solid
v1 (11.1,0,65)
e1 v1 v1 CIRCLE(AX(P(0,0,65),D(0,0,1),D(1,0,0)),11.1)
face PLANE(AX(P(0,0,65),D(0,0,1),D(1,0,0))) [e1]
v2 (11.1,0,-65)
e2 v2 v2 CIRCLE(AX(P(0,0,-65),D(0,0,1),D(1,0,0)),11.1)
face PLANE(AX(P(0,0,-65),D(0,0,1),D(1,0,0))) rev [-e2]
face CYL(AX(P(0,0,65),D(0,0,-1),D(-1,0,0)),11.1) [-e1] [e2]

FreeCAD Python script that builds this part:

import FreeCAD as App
import Part
import Sketcher

V = App.Vector
Q = App.Units.Quantity

doc = App.newDocument("Part")
body = doc.addObject("PartDesign::Body", "Body")

sketch1 = body.newObject("Sketcher::SketchObject", "Sketch")
sketch1.AttachmentSupport = (doc.getObject("XY_Plane"), [""])
sketch1.MapMode = "FlatFace"
sketch1.addGeometry(Part.Circle(V(0, 0, 0), V(0, 0, 1), 11), False)
sketch1.addConstraint([
    Sketcher.Constraint("Coincident", 0, 3, -1, 1),
    Sketcher.Constraint("Diameter", 0, Q("22.2 mm")),
])
pad1 = body.newObject("PartDesign::Pad", "Pad")
pad1.Profile = sketch1
pad1.Length = 130
pad1.Midplane = True

doc.recompute()
